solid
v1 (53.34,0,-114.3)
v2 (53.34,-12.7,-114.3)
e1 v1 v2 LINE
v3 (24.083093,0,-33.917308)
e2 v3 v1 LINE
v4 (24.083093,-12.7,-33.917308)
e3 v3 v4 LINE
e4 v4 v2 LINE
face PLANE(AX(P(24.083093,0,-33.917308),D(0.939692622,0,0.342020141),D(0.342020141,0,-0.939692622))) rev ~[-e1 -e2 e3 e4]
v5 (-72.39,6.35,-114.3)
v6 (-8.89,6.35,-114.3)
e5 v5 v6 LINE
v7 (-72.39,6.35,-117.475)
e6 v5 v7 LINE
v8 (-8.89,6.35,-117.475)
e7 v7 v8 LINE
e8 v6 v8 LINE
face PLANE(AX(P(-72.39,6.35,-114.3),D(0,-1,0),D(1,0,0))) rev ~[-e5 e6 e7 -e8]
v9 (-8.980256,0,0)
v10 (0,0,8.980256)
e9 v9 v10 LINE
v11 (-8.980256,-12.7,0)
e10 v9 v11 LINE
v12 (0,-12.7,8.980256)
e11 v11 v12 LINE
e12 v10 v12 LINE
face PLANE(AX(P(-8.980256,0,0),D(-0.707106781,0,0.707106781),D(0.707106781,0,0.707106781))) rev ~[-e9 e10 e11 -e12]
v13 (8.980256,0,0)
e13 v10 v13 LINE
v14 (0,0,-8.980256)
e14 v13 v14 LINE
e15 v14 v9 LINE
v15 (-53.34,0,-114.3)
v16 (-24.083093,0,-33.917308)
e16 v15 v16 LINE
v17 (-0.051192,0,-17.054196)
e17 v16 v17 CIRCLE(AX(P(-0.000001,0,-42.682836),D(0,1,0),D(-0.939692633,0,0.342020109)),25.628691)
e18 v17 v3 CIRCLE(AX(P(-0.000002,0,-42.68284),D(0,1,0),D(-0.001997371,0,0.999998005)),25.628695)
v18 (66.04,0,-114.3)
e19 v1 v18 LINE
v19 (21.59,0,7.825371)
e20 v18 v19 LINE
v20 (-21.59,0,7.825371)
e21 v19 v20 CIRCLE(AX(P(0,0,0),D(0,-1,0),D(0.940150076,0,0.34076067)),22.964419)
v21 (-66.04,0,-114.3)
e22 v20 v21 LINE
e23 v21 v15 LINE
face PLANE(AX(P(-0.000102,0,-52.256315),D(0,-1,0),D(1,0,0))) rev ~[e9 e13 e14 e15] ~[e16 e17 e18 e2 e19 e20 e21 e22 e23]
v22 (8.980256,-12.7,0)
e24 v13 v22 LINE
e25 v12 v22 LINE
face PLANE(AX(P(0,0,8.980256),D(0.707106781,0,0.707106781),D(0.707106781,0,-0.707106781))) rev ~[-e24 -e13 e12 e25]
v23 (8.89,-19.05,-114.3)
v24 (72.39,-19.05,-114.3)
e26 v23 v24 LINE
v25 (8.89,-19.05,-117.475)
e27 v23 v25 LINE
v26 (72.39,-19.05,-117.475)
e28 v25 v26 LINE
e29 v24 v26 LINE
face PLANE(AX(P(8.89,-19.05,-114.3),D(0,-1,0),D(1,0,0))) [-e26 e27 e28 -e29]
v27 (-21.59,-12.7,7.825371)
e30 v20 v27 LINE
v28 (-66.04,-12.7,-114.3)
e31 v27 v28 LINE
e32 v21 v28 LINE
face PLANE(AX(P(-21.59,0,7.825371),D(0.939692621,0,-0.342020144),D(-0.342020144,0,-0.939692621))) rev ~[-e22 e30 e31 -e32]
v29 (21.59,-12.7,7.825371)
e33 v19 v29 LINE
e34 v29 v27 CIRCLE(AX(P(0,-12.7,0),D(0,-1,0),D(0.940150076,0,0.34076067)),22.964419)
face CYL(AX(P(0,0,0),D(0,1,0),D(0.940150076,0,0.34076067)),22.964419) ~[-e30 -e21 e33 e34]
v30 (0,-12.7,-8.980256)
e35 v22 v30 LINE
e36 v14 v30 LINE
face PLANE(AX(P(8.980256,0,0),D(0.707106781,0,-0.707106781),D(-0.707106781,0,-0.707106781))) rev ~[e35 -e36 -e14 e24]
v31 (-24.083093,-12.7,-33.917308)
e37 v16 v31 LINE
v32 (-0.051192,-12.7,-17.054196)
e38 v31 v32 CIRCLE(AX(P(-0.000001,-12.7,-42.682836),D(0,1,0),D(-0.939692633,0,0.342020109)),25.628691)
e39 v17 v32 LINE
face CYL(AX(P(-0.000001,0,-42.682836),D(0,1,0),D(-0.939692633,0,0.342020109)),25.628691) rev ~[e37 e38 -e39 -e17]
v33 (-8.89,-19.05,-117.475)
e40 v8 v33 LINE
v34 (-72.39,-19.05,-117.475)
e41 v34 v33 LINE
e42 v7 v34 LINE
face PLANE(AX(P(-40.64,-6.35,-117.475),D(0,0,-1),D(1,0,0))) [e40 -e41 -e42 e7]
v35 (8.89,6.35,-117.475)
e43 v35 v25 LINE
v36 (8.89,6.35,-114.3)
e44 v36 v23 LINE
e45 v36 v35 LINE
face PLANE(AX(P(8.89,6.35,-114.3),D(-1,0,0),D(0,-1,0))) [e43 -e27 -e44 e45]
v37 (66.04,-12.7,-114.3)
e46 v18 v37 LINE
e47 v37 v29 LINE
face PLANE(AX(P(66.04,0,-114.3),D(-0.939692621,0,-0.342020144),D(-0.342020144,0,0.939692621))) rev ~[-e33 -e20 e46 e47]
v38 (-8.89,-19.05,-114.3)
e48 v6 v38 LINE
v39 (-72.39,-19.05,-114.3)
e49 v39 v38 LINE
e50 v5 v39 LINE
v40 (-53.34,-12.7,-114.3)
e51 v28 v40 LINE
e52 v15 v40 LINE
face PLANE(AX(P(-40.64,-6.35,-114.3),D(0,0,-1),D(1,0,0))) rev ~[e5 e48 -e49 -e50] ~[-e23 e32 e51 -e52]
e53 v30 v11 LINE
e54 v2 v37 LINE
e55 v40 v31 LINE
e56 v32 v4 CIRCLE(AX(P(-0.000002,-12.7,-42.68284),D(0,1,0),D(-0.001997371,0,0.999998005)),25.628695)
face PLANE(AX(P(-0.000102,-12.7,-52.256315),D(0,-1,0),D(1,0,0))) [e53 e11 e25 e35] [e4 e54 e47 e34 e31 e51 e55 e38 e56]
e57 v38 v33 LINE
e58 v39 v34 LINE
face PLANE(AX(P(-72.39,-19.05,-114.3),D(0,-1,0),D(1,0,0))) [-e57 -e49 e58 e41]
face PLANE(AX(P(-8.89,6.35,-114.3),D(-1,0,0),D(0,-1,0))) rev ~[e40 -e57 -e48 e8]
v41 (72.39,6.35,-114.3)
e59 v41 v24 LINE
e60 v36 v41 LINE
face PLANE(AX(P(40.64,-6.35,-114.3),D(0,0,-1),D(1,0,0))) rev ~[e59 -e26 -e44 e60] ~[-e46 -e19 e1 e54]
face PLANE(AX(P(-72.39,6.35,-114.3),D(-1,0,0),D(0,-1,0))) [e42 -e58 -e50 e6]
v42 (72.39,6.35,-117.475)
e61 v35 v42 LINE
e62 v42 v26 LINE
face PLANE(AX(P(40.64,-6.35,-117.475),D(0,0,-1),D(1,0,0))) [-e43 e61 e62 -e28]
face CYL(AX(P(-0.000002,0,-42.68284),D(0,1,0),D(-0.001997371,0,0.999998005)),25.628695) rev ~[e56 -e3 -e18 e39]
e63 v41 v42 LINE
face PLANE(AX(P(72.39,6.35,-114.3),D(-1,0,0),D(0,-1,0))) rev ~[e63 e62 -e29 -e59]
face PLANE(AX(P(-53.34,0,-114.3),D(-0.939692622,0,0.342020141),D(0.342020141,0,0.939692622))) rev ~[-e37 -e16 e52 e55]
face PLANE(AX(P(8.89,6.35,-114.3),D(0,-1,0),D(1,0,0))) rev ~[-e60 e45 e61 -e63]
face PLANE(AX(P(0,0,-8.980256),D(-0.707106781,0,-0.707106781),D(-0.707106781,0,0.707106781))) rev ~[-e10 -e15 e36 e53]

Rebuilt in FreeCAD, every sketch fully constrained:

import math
import FreeCAD as App
import Part
import Sketcher

V = App.Vector
Q = App.Units.Quantity


def add_polygon(sketch, points):
    """Adds a closed chain of lines whose ends are joined by coincident constraints."""
    first, n = sketch.GeometryCount, len(points)
    for a, b in zip(points, points[1:] + points[:1]):
        sketch.addGeometry(Part.LineSegment(App.Vector(*a, 0), App.Vector(*b, 0)), False)
    for i in range(n):
        sketch.addConstraint(Sketcher.Constraint("Coincident", first + i, 2, first + (i + 1) % n, 1))

doc = App.newDocument("Part")
params = doc.addObject("Spreadsheet::Sheet", "Params")
for row, (alias, value) in enumerate([
    ("sketch1_width", "0.5 in"),
    ("sketch1_length", "0.5 in"),
    ("pad1_length", "0.5 in"),
    ("sketch2_height", "1 in"),
    ("sketch2_width", "2.5 in"),
    ("pad2_length", "0.125 in"),
    ("sketch3_height", "1 in"),
    ("sketch3_width", "2.5 in"),
    ("pad3_length", "0.125 in"),
], start=1):
    params.set(f"A{row}", alias)
    params.set(f"B{row}", "=" + value)
    params.setAlias(f"B{row}", alias)

body = doc.addObject("PartDesign::Body", "Body")

sketch1 = doc.addObject("Sketcher::SketchObject", "Sketch")
body.addObject(sketch1)
sketch1.AttachmentSupport = (doc.XZ_Plane, [""])
sketch1.MapMode = "FlatFace"
sketch1.addGeometry(Part.ArcOfCircle(Part.Circle(V(0, 0, 0), V(0, 0, 1), 23), math.radians(20), math.radians(160)), False)
sketch1.addGeometry(Part.LineSegment(V(-22, 8, 0), V(-66, -114, 0)), False)
sketch1.addGeometry(Part.LineSegment(V(-66, -114, 0), V(-53, -114, 0)), False)
sketch1.addGeometry(Part.LineSegment(V(-53, -114, 0), V(-24, -34, 0)), False)
sketch1.addGeometry(Part.ArcOfCircle(Part.Circle(V(0, -43, 0), V(0, 0, 1), 26), math.radians(90), math.radians(160)), False)
sketch1.addGeometry(Part.ArcOfCircle(Part.Circle(V(0, -43, 0), V(0, 0, 1), 26), math.radians(20), math.radians(90)), False)
sketch1.addGeometry(Part.LineSegment(V(24, -34, 0), V(53, -114, 0)), False)
sketch1.addGeometry(Part.LineSegment(V(53, -114, 0), V(66, -114, 0)), False)
sketch1.addGeometry(Part.LineSegment(V(66, -114, 0), V(22, 8, 0)), False)
add_polygon(sketch1, [(-9, 0), (0, 9), (9, 0), (0, -9)])
sketch1.addConstraint([
    Sketcher.Constraint("Coincident", 0, 2, 1, 1),
    Sketcher.Constraint("Coincident", 1, 2, 2, 1),
    Sketcher.Constraint("Coincident", 2, 2, 3, 1),
    Sketcher.Constraint("Tangent", 3, 2, 4, 2),
    Sketcher.Constraint("Tangent", 4, 1, 5, 2),
    Sketcher.Constraint("Tangent", 5, 1, 6, 1),
    Sketcher.Constraint("Coincident", 6, 2, 7, 1),
    Sketcher.Constraint("Coincident", 7, 2, 8, 1),
    Sketcher.Constraint("Coincident", 8, 2, 0, 1),
    Sketcher.Constraint("Horizontal", 2),
    Sketcher.Constraint("Horizontal", 7),
    Sketcher.Constraint("Coincident", 0, 3, -1, 1),
    Sketcher.Constraint("Symmetric", 9, 2, 11, 2, -1, 1),
    Sketcher.Constraint("Symmetric", 10, 2, 12, 2, -1, 1),
    Sketcher.Constraint("Symmetric", 3, 2, 5, 1, -2),
    Sketcher.Constraint("Symmetric", 2, 2, 6, 2, -2),
    Sketcher.Constraint("PointOnObject", 9, 2, -2),
    Sketcher.Constraint("PointOnObject", 10, 2, -1),
    Sketcher.Constraint("Parallel", 1, 3),
    Sketcher.Constraint("Parallel", 6, 8),
    Sketcher.Constraint("Perpendicular", 9, 10),
    Sketcher.Constraint("Horizontal", 0, 2, 8, 2),
    Sketcher.Constraint("DistanceX", 2, 1, 2, 2, Q("0.5 in")),
    Sketcher.Constraint("Angle", 1, Q("-110 deg")),
    Sketcher.Constraint("Distance", 9, Q("0.5 in")),
    Sketcher.Constraint("DistanceX", 1, 2, -1, 1, Q("2.6 in")),
    Sketcher.Constraint("DistanceY", 1, 2, -1, 1, Q("4.5 in")),
    Sketcher.Constraint("DistanceX", 0, 2, 8, 2, Q("1.7 in")),
    Sketcher.Constraint("Radius", 4, 25.628691),
    Sketcher.Constraint("DistanceX", 3, 2, 4, 1, 24.031901),
])
sketch1.setExpression("Constraints[26]", "Params.sketch1_width")
sketch1.setExpression("Constraints[28]", "Params.sketch1_length")
pad1 = doc.addObject("PartDesign::Pad", "Pad")
body.addObject(pad1)
pad1.Profile = sketch1
pad1.setExpression("Length", "Params.pad1_length")

sketch2 = doc.addObject("Sketcher::SketchObject", "Sketch001")
body.addObject(sketch2)
sketch2.AttachmentSupport = (doc.XY_Plane, [""])
sketch2.MapMode = "FlatFace"
sketch2.AttachmentOffset = App.Placement(V(0, 0, -4.5 * 25.4), App.Rotation())
add_polygon(sketch2, [(-72, -19), (-72, 6), (-9, 6), (-9, -19)])
sketch2.addConstraint([
    Sketcher.Constraint("Vertical", 0),
    Sketcher.Constraint("Horizontal", 1),
    Sketcher.Constraint("Vertical", 2),
    Sketcher.Constraint("Horizontal", 3),
    Sketcher.Constraint("DistanceY", 0, 1, 0, 2, Q("1 in")),
    Sketcher.Constraint("DistanceX", 1, 1, 1, 2, Q("2.5 in")),
    Sketcher.Constraint("DistanceX", 0, 2, -1, 1, Q("2.85 in")),
    Sketcher.Constraint("DistanceY", -1, 1, 0, 2, Q("0.25 in")),
])
sketch2.setExpression("Constraints[8]", "Params.sketch2_height")
sketch2.setExpression("Constraints[9]", "Params.sketch2_width")
pad2 = doc.addObject("PartDesign::Pad", "Pad001")
body.addObject(pad2)
pad2.Profile = sketch2
pad2.setExpression("Length", "Params.pad2_length")
pad2.Reversed = True

sketch3 = doc.addObject("Sketcher::SketchObject", "Sketch002")
body.addObject(sketch3)
sketch3.AttachmentSupport = (doc.XY_Plane, [""])
sketch3.MapMode = "FlatFace"
sketch3.AttachmentOffset = App.Placement(V(0, 0, -4.5 * 25.4), App.Rotation())
add_polygon(sketch3, [(9, -19), (9, 6), (72, 6), (72, -19)])
sketch3.addConstraint([
    Sketcher.Constraint("Vertical", 0),
    Sketcher.Constraint("Horizontal", 1),
    Sketcher.Constraint("Vertical", 2),
    Sketcher.Constraint("Horizontal", 3),
    Sketcher.Constraint("DistanceY", 0, 1, 0, 2, Q("1 in")),
    Sketcher.Constraint("DistanceX", 1, 1, 1, 2, Q("2.5 in")),
    Sketcher.Constraint("DistanceX", -1, 1, 0, 2, Q("0.35 in")),
    Sketcher.Constraint("DistanceY", -1, 1, 0, 2, Q("0.25 in")),
])
sketch3.setExpression("Constraints[8]", "Params.sketch3_height")
sketch3.setExpression("Constraints[9]", "Params.sketch3_width")
pad3 = doc.addObject("PartDesign::Pad", "Pad002")
body.addObject(pad3)
pad3.Profile = sketch3
pad3.setExpression("Length", "Params.pad3_length")
pad3.Reversed = True

doc.recompute()
